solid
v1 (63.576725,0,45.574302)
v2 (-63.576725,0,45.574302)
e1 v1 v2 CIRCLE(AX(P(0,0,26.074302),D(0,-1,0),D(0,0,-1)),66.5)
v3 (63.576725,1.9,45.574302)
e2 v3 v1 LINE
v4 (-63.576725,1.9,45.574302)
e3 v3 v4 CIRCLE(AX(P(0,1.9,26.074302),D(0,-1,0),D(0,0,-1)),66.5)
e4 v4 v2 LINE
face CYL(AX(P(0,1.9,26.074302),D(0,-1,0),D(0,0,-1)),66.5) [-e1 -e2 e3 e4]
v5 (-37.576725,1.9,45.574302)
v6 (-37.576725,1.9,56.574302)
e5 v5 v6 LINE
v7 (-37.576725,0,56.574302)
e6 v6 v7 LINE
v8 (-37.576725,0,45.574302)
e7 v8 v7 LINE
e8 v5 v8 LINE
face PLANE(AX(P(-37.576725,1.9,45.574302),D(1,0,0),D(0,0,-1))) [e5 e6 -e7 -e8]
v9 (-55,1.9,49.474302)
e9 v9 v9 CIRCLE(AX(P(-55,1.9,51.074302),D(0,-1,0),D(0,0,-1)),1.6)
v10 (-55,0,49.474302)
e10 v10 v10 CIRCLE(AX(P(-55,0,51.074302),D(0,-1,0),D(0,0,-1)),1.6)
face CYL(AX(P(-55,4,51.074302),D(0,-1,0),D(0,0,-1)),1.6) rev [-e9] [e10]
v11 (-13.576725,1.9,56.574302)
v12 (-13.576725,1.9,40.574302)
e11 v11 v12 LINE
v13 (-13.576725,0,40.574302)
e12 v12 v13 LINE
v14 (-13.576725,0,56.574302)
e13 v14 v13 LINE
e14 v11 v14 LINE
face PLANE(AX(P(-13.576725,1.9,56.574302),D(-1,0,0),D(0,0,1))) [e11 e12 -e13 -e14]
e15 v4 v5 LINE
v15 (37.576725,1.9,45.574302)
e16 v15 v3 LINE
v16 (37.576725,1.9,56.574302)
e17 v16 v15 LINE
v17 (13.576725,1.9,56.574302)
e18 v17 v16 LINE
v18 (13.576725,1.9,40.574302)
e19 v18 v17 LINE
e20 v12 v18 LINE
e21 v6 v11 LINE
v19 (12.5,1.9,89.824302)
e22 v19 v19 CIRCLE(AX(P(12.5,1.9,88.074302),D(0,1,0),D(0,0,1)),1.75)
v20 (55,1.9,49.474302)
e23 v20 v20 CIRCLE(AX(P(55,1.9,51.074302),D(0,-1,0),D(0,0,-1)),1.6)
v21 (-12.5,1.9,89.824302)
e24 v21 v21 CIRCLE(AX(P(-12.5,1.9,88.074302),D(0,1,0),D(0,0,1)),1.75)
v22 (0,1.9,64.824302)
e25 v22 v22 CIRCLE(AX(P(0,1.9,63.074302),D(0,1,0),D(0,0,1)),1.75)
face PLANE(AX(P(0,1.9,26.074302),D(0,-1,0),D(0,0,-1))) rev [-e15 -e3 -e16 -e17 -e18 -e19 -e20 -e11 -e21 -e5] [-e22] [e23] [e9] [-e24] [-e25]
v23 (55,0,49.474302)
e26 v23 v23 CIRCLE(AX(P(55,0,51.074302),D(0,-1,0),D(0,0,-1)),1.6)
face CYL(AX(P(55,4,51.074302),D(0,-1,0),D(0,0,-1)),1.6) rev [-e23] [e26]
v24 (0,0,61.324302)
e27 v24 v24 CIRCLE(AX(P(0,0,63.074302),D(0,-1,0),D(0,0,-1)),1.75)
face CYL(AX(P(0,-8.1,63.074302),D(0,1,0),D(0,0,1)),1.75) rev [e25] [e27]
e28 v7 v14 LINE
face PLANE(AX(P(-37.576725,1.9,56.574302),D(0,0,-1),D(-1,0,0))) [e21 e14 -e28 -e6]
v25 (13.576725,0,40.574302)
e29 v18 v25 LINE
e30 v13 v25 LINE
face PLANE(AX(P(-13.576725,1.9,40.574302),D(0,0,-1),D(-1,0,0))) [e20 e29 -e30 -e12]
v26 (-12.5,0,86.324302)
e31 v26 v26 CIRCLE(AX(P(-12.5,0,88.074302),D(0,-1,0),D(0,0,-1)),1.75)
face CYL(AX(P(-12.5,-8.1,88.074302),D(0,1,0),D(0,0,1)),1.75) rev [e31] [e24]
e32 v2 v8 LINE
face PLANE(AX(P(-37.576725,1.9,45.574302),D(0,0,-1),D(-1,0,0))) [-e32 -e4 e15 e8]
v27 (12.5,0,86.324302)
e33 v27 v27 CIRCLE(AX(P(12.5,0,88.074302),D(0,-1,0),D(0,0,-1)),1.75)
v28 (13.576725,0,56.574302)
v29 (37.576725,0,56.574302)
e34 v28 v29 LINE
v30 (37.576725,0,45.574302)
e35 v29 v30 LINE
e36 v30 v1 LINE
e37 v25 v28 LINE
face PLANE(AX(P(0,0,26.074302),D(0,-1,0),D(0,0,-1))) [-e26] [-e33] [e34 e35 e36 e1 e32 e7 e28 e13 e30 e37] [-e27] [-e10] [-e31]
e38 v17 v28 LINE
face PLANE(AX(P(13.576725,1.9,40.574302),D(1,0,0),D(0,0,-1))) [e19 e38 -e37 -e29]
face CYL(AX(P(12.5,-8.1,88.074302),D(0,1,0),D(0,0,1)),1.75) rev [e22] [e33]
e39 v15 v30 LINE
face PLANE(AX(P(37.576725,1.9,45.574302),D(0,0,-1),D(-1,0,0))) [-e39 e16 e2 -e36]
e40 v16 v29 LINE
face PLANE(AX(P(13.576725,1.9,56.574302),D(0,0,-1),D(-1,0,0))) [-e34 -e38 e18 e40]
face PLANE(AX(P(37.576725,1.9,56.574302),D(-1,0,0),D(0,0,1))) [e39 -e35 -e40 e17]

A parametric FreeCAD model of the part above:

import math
import FreeCAD as App
import Part
import Sketcher
Q = App.Units.Quantity

doc = App.newDocument("Part")
body = doc.addObject("PartDesign::Body", "Body")

sketch1 = body.newObject("Sketcher::SketchObject", "Sketch")
sketch1.AttachmentSupport = (doc.getObject("XZ_Plane"), [""])
sketch1.MapMode = "FlatFace"
sketch1.addGeometry([
    Part.LineSegment(App.Vector(-18, -10, 0), App.Vector(-18, 10, 0)),
    Part.LineSegment(App.Vector(-18, 10, 0), App.Vector(18, 10, 0)),
    Part.LineSegment(App.Vector(18, 10, 0), App.Vector(18, -10, 0)),
    Part.LineSegment(App.Vector(18, -10, 0), App.Vector(-18, -10, 0)),
], False)
sketch1.addConstraint([
    Sketcher.Constraint("Coincident", 0, 2, 1, 1),
    Sketcher.Constraint("Coincident", 1, 2, 2, 1),
    Sketcher.Constraint("Coincident", 2, 2, 3, 1),
    Sketcher.Constraint("Coincident", 3, 2, 0, 1),
    Sketcher.Constraint("Vertical", 0),
    Sketcher.Constraint("Horizontal", 1),
    Sketcher.Constraint("Vertical", 2),
    Sketcher.Constraint("Horizontal", 3),
    Sketcher.Constraint("Symmetric", 0, 2, 2, 2, -1, 1),
    Sketcher.Constraint("DistanceX", 1, 1, 1, 2, Q("36 mm")),
    Sketcher.Constraint("DistanceY", 0, 1, 0, 2, Q("20 mm")),
])
pad1 = body.newObject("PartDesign::Pad", "Pad")
pad1.Profile = sketch1
pad1.Length = 1.9
pad1.Reversed = True

sketch2 = body.newObject("Sketcher::SketchObject", "Sketch001")
sketch2.AttachmentSupport = (doc.getObject("XZ_Plane"), [""])
sketch2.MapMode = "FlatFace"
sketch2.AttachmentOffset = App.Placement(App.Vector(0, 0, -1.9), App.Rotation())
sketch2.addGeometry([
    Part.LineSegment(App.Vector(-29.616266, -16.043833, 0), App.Vector(-29.616266, 16.043833, 0)),
    Part.LineSegment(App.Vector(-29.616266, 16.043833, 0), App.Vector(29.616266, 16.043833, 0)),
    Part.LineSegment(App.Vector(29.616266, 16.043833, 0), App.Vector(29.616266, -16.043833, 0)),
    Part.LineSegment(App.Vector(29.616266, -16.043833, 0), App.Vector(-29.616266, -16.043833, 0)),
], False)
sketch2.addConstraint([
    Sketcher.Constraint("Coincident", 0, 2, 1, 1),
    Sketcher.Constraint("Coincident", 1, 2, 2, 1),
    Sketcher.Constraint("Coincident", 2, 2, 3, 1),
    Sketcher.Constraint("Coincident", 3, 2, 0, 1),
    Sketcher.Constraint("Vertical", 0),
    Sketcher.Constraint("Horizontal", 1),
    Sketcher.Constraint("Vertical", 2),
    Sketcher.Constraint("Horizontal", 3),
    Sketcher.Constraint("Symmetric", 0, 2, 2, 2, -1, 1),
    Sketcher.Constraint("DistanceX", 1, 1, 1, 2, Q("59.232532 mm")),
    Sketcher.Constraint("DistanceY", 0, 1, 0, 2, Q("32.087666 mm")),
])
pocket1 = body.newObject("PartDesign::Pocket", "Pocket")
pocket1.Profile = sketch2
pocket1.Length = 10
pocket1.Reversed = True
body2 = doc.addObject("PartDesign::Body", "Body001")

sketch3 = body2.newObject("Sketcher::SketchObject", "Sketch002")
sketch3.AttachmentSupport = (doc.getObject("XZ_Plane001"), [""])
sketch3.MapMode = "FlatFace"
sketch3.addGeometry([
    Part.LineSegment(App.Vector(-37.576725, 45.574302, 0), App.Vector(-37.576725, 56.574302, 0)),
    Part.LineSegment(App.Vector(-37.576725, 56.574302, 0), App.Vector(-13.576725, 56.574302, 0)),
    Part.LineSegment(App.Vector(-13.576725, 56.574302, 0), App.Vector(-13.576725, 40.574302, 0)),
    Part.LineSegment(App.Vector(-13.576725, 40.574302, 0), App.Vector(13.576725, 40.574302, 0)),
    Part.LineSegment(App.Vector(13.576725, 40.574302, 0), App.Vector(13.576725, 56.574302, 0)),
    Part.LineSegment(App.Vector(13.576725, 56.574302, 0), App.Vector(37.576725, 56.574302, 0)),
    Part.LineSegment(App.Vector(37.576725, 56.574302, 0), App.Vector(37.576725, 45.574302, 0)),
    Part.LineSegment(App.Vector(37.576725, 45.574302, 0), App.Vector(63.576725, 45.574302, 0)),
    Part.ArcOfCircle(Part.Circle(App.Vector(0, 26.074302, 0), App.Vector(0, 0, 1), 66.5), math.radians(17.051615), math.radians(162.948385)),
    Part.LineSegment(App.Vector(-63.576725, 45.574302, 0), App.Vector(-37.576725, 45.574302, 0)),
], False)
sketch3.addConstraint([
    Sketcher.Constraint("Coincident", 0, 2, 1, 1),
    Sketcher.Constraint("Coincident", 1, 2, 2, 1),
    Sketcher.Constraint("Coincident", 2, 2, 3, 1),
    Sketcher.Constraint("Coincident", 3, 2, 4, 1),
    Sketcher.Constraint("Coincident", 4, 2, 5, 1),
    Sketcher.Constraint("Coincident", 5, 2, 6, 1),
    Sketcher.Constraint("Coincident", 6, 2, 7, 1),
    Sketcher.Constraint("Coincident", 7, 2, 8, 1),
    Sketcher.Constraint("Coincident", 8, 2, 9, 1),
    Sketcher.Constraint("Coincident", 9, 2, 0, 1),
    Sketcher.Constraint("Vertical", 0),
    Sketcher.Constraint("Horizontal", 1),
    Sketcher.Constraint("Vertical", 2),
    Sketcher.Constraint("Horizontal", 3),
    Sketcher.Constraint("Vertical", 4),
    Sketcher.Constraint("Horizontal", 5),
    Sketcher.Constraint("Vertical", 6),
    Sketcher.Constraint("Horizontal", 7),
    Sketcher.Constraint("Horizontal", 9),
    Sketcher.Constraint("Symmetric", 1, 2, 4, 2, -2),
    Sketcher.Constraint("Symmetric", 7, 2, 8, 2, -2),
    Sketcher.Constraint("Equal", 1, 5),
    Sketcher.Constraint("Radius", 8, Q("66.5 mm")),
    Sketcher.Constraint("DistanceX", 1, 1, 1, 2, Q("24 mm")),
    Sketcher.Constraint("DistanceX", 7, 1, 7, 2, Q("26 mm")),
    Sketcher.Constraint("DistanceY", 0, 1, 0, 2, Q("11 mm")),
    Sketcher.Constraint("DistanceY", 2, 2, 2, 1, Q("16 mm")),
    Sketcher.Constraint("DistanceY", 8, 3, 0, 2, Q("30.5 mm")),
    Sketcher.Constraint("DistanceY", -1, 1, 8, 3, Q("26.074302 mm")),
])
pad2 = body2.newObject("PartDesign::Pad", "Pad001")
pad2.Profile = sketch3
pad2.Length = 1.9
pad2.Reversed = True

sketch4 = body2.newObject("Sketcher::SketchObject", "Sketch003")
sketch4.AttachmentSupport = (doc.getObject("XZ_Plane001"), [""])
sketch4.MapMode = "FlatFace"
sketch4.AttachmentOffset = App.Placement(App.Vector(0, 0, -1.9), App.Rotation())
sketch4.addGeometry([
    Part.Circle(App.Vector(-12.5, 88.074302, 0), App.Vector(0, 0, 1), 1.75),
    Part.Circle(App.Vector(12.5, 88.074302, 0), App.Vector(0, 0, 1), 1.75),
    Part.Circle(App.Vector(0, 63.074302, 0), App.Vector(0, 0, 1), 1.75),
], False)
sketch4.addConstraint([
    Sketcher.Constraint("Equal", 0, 1),
    Sketcher.Constraint("Equal", 1, 2),
    Sketcher.Constraint("Symmetric", 0, 3, 1, 3, -2),
    Sketcher.Constraint("PointOnObject", 2, 3, -2),
    Sketcher.Constraint("Diameter", 0, Q("3.5 mm")),
    Sketcher.Constraint("DistanceX", 0, 3, 1, 3, Q("25 mm")),
    Sketcher.Constraint("DistanceY", 2, 3, 0, 3, Q("25 mm")),
    Sketcher.Constraint("DistanceY", -1, 1, 0, 3, Q("88.074302 mm")),
])
pocket2 = body2.newObject("PartDesign::Pocket", "Pocket001")
pocket2.Profile = sketch4
pocket2.Length = 10
pocket2.Reversed = True

sketch5 = body2.newObject("Sketcher::SketchObject", "Sketch004")
sketch5.AttachmentSupport = (doc.getObject("XZ_Plane001"), [""])
sketch5.MapMode = "FlatFace"
sketch5.addGeometry([
    Part.Circle(App.Vector(-55, 51.074302, 0), App.Vector(0, 0, 1), 1.6),
    Part.Circle(App.Vector(55, 51.074302, 0), App.Vector(0, 0, 1), 1.6),
], False)
sketch5.addConstraint([
    Sketcher.Constraint("Equal", 0, 1),
    Sketcher.Constraint("Symmetric", 0, 3, 1, 3, -2),
    Sketcher.Constraint("Diameter", 0, Q("3.2 mm")),
    Sketcher.Constraint("DistanceX", 0, 3, -1, 1, Q("55 mm")),
    Sketcher.Constraint("DistanceY", -1, 1, 0, 3, Q("51.074302 mm")),
])
pocket3 = body2.newObject("PartDesign::Pocket", "Pocket002")
pocket3.Profile = sketch5
pocket3.Length = 4

doc.recompute()
